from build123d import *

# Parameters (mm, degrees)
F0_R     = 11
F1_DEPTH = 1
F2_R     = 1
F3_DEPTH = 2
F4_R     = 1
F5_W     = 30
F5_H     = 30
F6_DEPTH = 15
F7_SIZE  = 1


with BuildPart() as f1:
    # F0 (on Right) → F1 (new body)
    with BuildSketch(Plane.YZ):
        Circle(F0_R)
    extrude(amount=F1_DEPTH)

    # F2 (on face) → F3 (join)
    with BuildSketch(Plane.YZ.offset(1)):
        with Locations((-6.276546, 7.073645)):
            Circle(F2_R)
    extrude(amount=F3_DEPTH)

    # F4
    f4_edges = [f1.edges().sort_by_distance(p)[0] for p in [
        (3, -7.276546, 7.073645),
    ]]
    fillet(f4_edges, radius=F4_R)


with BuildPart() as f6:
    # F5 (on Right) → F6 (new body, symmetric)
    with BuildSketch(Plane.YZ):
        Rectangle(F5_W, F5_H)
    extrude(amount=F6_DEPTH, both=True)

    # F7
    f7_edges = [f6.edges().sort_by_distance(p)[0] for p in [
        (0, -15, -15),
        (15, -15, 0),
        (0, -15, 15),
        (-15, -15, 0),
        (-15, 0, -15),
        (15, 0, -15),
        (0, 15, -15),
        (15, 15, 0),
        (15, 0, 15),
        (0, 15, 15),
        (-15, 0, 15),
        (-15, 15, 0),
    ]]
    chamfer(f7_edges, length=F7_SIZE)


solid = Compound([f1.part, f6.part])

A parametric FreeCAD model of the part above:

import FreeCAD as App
import Part
import Sketcher

V = App.Vector
Q = App.Units.Quantity


def edges_at(feature, points):
    """Names of the edges that pass closest to the given points."""
    edges = feature.Shape.Edges
    near = lambda p: min(range(len(edges)), key=lambda i: edges[i].distToShape(Part.Vertex(*p))[0])
    return sorted({f"Edge{near(p) + 1}" for p in points})


def add_polygon(sketch, points):
    """Adds a closed chain of lines whose ends are joined by coincident constraints."""
    first, n = sketch.GeometryCount, len(points)
    for a, b in zip(points, points[1:] + points[:1]):
        sketch.addGeometry(Part.LineSegment(App.Vector(*a, 0), App.Vector(*b, 0)), False)
    for i in range(n):
        sketch.addConstraint(Sketcher.Constraint("Coincident", first + i, 2, first + (i + 1) % n, 1))

doc = App.newDocument("Part")
params = doc.addObject("Spreadsheet::Sheet", "Params")
for row, (alias, value) in enumerate([
    ("sketch1_diameter", "22 mm"),
    ("pad1_length", "1 mm"),
    ("sketch2_diameter", "2 mm"),
    ("pad2_length", "2 mm"),
    ("fillet_radius", "1 mm"),
    ("sketch3_width", "30 mm"),
    ("pad3_length", "30 mm"),
    ("chamfer_size", "1 mm"),
], start=1):
    params.set(f"A{row}", alias)
    params.set(f"B{row}", "=" + value)
    params.setAlias(f"B{row}", alias)

body = doc.addObject("PartDesign::Body", "Body")

# Sketch on YZ plane
sketch1 = body.newObject("Sketcher::SketchObject", "Sketch")
sketch1.AttachmentSupport = (doc.getObject("YZ_Plane"), [""])
sketch1.MapMode = "FlatFace"
sketch1.addGeometry(Part.Circle(V(0, 0, 0), V(0, 0, 1), 11), False)
sketch1.addConstraint(Sketcher.Constraint("Coincident", 0, 3, -1, 1))
sketch1.addConstraint(Sketcher.Constraint("Diameter", 0, Q("22 mm")))
sketch1.setExpression("Constraints[1]", "Params.sketch1_diameter")
pad1 = body.newObject("PartDesign::Pad", "Pad")
pad1.Profile = sketch1
pad1.setExpression("Length", "Params.pad1_length")

# Sketch on YZ plane
sketch2 = body.newObject("Sketcher::SketchObject", "Sketch001")
sketch2.AttachmentSupport = (doc.getObject("YZ_Plane"), [""])
sketch2.MapMode = "FlatFace"
sketch2.AttachmentOffset = App.Placement(V(0, 0, 1), App.Rotation())
sketch2.addGeometry(Part.Circle(V(-6.3, 7.1, 0), V(0, 0, 1), 1), False)
sketch2.addConstraint(Sketcher.Constraint("Diameter", 0, Q("2 mm")))
sketch2.addConstraint(Sketcher.Constraint("DistanceX", 0, 3, -1, 1, Q("6.276546 mm")))
sketch2.addConstraint(Sketcher.Constraint("DistanceY", -1, 1, 0, 3, Q("7.073645 mm")))
sketch2.setExpression("Constraints[0]", "Params.sketch2_diameter")
pad2 = body.newObject("PartDesign::Pad", "Pad001")
pad2.Profile = sketch2
pad2.setExpression("Length", "Params.pad2_length")
doc.recompute()

fillet = body.newObject("PartDesign::Fillet", "Fillet")
fillet.Base = (pad2, edges_at(pad2, [(3, -7.277, 7.074)]))
fillet.setExpression("Radius", "Params.fillet_radius")
body2 = doc.addObject("PartDesign::Body", "Body001")

# Sketch on YZ plane
sketch3 = body2.newObject("Sketcher::SketchObject", "Sketch002")
sketch3.AttachmentSupport = (doc.getObject("YZ_Plane001"), [""])
sketch3.MapMode = "FlatFace"
add_polygon(sketch3, [(-15, 15), (-15, -15), (15, -15), (15, 15)])  # lines 0-3
sketch3.addConstraint(Sketcher.Constraint("Vertical", 0))
sketch3.addConstraint(Sketcher.Constraint("Horizontal", 1))
sketch3.addConstraint(Sketcher.Constraint("Vertical", 2))
sketch3.addConstraint(Sketcher.Constraint("Horizontal", 3))
sketch3.addConstraint(Sketcher.Constraint("Symmetric", 0, 2, 2, 2, -1, 1))
sketch3.addConstraint(Sketcher.Constraint("Equal", 3, 0))
sketch3.addConstraint(Sketcher.Constraint("DistanceX", 1, 1, 1, 2, Q("30 mm")))
sketch3.setExpression("Constraints[10]", "Params.sketch3_width")
pad3 = body2.newObject("PartDesign::Pad", "Pad002")
pad3.Profile = sketch3
pad3.setExpression("Length", "Params.pad3_length")
pad3.Midplane = True
doc.recompute()

chamfer = body2.newObject("PartDesign::Chamfer", "Chamfer")
chamfer.Base = (pad3, ["Edge1"])
chamfer.UseAllEdges = True
chamfer.setExpression("Size", "Params.chamfer_size")

doc.recompute()
